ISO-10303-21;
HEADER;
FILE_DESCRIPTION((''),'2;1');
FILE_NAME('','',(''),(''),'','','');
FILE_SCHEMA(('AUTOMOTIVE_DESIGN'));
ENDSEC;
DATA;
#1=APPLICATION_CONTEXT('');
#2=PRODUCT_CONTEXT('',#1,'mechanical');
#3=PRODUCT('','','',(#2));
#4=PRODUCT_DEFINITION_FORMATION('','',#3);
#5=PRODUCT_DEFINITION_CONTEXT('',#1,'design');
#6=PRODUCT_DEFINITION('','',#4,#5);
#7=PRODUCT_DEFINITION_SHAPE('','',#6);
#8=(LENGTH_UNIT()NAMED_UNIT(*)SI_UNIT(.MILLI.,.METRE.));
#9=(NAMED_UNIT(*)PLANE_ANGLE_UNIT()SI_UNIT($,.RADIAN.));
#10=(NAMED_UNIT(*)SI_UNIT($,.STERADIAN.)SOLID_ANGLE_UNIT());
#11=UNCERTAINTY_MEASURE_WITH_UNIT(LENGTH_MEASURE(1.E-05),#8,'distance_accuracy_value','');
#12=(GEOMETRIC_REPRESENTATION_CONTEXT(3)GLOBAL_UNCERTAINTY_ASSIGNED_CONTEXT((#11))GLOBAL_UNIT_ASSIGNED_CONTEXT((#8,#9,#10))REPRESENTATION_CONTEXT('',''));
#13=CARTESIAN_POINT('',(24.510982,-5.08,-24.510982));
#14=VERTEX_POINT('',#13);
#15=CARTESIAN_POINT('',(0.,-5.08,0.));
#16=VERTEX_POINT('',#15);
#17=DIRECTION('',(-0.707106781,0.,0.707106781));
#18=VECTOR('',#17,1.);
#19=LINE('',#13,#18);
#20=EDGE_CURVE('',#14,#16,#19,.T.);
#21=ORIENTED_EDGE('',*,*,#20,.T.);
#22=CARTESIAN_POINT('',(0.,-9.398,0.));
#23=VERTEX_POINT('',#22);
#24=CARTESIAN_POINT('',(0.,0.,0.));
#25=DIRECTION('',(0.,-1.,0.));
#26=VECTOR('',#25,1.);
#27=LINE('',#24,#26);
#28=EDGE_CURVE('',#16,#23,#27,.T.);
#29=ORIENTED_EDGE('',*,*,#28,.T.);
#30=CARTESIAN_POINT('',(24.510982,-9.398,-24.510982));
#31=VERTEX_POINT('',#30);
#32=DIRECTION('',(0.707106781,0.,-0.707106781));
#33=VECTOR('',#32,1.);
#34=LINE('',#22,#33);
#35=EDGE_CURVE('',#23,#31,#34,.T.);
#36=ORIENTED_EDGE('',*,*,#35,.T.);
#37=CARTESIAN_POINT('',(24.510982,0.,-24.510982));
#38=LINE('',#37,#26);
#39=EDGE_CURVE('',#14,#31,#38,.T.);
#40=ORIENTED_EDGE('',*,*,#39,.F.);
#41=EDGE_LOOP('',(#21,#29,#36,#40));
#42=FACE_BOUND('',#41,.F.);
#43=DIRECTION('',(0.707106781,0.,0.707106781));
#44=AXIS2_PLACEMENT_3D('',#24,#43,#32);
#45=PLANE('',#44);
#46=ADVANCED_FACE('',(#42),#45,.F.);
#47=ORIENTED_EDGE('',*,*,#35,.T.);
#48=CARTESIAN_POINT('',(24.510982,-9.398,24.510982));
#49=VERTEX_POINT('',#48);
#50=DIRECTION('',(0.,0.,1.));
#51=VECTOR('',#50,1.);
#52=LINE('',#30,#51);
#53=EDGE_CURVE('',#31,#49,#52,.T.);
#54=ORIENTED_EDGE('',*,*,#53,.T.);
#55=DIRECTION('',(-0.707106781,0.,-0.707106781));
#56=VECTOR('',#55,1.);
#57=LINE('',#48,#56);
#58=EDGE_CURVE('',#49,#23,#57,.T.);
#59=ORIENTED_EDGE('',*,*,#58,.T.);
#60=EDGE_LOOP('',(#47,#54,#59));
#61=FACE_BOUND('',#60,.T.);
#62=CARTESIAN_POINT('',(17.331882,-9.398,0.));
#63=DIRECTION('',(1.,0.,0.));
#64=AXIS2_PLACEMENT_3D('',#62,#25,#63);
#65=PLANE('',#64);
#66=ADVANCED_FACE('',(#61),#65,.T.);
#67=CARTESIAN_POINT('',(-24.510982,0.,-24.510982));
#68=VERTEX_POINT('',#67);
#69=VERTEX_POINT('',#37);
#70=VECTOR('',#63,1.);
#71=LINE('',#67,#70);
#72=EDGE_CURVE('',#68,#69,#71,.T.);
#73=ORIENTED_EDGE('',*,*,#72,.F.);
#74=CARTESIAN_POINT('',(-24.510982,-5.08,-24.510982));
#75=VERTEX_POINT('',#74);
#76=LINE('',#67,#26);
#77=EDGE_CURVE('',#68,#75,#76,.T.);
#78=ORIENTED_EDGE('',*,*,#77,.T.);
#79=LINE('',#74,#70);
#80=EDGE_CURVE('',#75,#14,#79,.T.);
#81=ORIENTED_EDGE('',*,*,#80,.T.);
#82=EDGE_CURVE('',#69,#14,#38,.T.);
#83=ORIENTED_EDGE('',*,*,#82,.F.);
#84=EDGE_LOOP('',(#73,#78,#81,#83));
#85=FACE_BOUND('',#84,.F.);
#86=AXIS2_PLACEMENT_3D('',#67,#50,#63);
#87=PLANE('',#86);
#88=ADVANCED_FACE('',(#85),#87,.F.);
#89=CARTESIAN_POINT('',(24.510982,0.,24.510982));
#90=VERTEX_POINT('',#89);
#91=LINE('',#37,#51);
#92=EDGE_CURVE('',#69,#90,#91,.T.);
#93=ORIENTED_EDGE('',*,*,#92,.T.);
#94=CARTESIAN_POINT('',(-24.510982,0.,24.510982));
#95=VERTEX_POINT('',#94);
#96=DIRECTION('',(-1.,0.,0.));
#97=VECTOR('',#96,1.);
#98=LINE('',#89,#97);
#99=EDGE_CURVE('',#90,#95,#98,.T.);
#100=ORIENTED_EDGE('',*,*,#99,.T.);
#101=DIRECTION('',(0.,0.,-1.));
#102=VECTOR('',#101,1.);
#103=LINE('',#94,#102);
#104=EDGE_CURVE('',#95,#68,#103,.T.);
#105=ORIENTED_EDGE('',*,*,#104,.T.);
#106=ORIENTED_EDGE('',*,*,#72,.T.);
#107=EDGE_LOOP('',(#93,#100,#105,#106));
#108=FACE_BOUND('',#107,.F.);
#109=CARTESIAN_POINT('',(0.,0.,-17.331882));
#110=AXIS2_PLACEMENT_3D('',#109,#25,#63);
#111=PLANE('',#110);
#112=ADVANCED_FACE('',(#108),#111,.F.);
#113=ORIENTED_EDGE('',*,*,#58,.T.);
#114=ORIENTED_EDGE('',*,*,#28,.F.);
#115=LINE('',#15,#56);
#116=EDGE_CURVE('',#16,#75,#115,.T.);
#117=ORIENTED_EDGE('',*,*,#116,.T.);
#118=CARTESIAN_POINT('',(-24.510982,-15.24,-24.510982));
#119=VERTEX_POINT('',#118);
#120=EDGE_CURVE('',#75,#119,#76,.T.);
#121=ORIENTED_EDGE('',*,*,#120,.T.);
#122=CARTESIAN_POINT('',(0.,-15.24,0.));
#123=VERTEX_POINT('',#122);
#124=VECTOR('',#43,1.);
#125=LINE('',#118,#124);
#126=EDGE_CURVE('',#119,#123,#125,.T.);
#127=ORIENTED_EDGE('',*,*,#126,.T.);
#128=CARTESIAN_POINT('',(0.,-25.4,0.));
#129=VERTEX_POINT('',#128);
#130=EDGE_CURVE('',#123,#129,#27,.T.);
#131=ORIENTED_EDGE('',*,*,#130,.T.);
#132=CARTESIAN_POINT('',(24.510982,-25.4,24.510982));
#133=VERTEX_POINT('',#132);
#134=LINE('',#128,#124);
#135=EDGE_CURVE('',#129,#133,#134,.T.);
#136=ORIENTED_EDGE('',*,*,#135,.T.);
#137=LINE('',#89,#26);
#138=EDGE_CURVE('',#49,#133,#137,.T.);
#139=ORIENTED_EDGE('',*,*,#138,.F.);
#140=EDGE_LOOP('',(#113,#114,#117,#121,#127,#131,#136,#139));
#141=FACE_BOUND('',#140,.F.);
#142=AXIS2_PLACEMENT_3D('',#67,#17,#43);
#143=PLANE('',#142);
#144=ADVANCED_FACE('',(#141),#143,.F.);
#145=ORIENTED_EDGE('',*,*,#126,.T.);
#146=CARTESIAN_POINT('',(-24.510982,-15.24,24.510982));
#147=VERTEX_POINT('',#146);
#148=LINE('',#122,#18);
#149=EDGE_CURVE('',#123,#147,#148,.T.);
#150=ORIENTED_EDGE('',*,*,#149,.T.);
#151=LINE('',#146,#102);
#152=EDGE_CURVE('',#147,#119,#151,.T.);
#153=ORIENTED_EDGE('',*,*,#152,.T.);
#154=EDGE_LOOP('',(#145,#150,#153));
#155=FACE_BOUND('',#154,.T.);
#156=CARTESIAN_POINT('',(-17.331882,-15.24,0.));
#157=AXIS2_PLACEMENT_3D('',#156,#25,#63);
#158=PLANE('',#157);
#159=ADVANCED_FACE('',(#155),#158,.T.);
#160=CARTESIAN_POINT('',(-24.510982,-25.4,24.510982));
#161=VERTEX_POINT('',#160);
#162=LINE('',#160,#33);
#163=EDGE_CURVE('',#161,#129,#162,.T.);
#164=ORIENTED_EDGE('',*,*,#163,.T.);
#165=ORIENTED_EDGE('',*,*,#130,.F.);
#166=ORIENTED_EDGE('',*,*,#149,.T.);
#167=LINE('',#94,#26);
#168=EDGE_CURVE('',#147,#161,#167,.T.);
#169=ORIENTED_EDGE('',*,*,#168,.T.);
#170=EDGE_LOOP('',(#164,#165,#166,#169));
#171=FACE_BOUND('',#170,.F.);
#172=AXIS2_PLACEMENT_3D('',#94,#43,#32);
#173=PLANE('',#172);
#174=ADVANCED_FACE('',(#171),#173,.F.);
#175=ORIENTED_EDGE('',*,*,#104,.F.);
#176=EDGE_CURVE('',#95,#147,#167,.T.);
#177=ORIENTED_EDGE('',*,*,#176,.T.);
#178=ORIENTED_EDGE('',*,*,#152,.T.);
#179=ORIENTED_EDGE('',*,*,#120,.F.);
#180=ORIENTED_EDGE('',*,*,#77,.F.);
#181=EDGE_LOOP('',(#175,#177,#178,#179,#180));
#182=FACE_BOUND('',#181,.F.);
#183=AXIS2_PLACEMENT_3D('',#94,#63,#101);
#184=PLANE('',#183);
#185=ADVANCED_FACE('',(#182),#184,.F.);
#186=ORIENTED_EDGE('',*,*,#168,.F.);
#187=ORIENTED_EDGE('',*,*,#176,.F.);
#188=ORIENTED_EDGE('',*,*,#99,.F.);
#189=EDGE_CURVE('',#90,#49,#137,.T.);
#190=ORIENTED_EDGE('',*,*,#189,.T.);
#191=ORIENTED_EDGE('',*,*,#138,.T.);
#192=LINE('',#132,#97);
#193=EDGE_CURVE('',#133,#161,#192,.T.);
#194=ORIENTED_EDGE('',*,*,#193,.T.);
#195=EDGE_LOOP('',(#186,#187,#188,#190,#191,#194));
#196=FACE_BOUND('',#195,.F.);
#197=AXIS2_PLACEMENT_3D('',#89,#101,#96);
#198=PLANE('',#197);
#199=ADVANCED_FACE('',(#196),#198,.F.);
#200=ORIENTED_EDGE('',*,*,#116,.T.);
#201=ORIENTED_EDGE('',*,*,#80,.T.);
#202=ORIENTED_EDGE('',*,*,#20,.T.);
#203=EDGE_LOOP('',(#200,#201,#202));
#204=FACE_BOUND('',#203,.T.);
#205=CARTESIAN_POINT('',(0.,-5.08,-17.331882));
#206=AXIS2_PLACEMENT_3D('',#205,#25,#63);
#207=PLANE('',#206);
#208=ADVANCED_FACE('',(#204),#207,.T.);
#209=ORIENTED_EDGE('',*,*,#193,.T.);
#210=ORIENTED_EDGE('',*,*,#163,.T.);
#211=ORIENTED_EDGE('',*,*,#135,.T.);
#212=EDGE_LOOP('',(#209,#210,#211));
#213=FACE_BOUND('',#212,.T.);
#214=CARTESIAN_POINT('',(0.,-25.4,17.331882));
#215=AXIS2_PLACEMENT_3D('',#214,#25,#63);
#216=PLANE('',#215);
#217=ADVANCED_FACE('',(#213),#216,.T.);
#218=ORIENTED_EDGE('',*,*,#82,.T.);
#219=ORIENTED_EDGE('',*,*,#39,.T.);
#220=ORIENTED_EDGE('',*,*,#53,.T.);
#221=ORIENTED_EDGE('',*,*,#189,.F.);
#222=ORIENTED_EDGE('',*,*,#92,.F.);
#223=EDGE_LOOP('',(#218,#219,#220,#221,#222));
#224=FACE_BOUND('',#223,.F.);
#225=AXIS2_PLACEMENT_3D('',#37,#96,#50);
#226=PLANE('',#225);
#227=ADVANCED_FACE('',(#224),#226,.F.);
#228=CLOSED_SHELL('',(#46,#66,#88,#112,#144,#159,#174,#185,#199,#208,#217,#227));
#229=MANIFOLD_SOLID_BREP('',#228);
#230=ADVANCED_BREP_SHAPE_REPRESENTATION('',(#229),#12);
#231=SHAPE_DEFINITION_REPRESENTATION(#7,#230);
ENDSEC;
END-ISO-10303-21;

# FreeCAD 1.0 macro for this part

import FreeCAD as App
import Part
import Sketcher
Q = App.Units.Quantity


def add_polygon(sketch, points):
    """Adds a closed chain of lines whose ends are joined by coincident constraints."""
    first, n = sketch.GeometryCount, len(points)
    for a, b in zip(points, points[1:] + points[:1]):
        sketch.addGeometry(Part.LineSegment(App.Vector(*a, 0), App.Vector(*b, 0)), False)
    for i in range(n):
        sketch.addConstraint(Sketcher.Constraint("Coincident", first + i, 2, first + (i + 1) % n, 1))

doc = App.newDocument("Part")
body = doc.addObject("PartDesign::Body", "Body")

# Sketch on XZ plane
sketch1 = body.newObject("Sketcher::SketchObject", "Sketch")
sketch1.AttachmentSupport = (doc.getObject("XZ_Plane"), [""])
sketch1.MapMode = "FlatFace"
add_polygon(sketch1, [(0, 0), (24.510982, 24.510982), (-24.510982, 24.510982)])  # lines 0-2
sketch1.addConstraint(Sketcher.Constraint("Horizontal", 1))
sketch1.addConstraint(Sketcher.Constraint("Coincident", 2, 2, -1, 1))
sketch1.addConstraint(Sketcher.Constraint("Perpendicular", 0, 2))
sketch1.addConstraint(Sketcher.Constraint("Equal", 0, 2))
sketch1.addConstraint(Sketcher.Constraint("DistanceX", 1, 2, 1, 1, 49.021964))
pad1 = body.newObject("PartDesign::Pad", "Pad")
pad1.Profile = sketch1
pad1.Length = Q("1 in")

# Sketch on XZ plane
sketch2 = body.newObject("Sketcher::SketchObject", "Sketch001")
sketch2.AttachmentSupport = (doc.getObject("XZ_Plane"), [""])
sketch2.MapMode = "FlatFace"
add_polygon(sketch2, [(-24.510982, 24.510982), (-24.510982, -24.510982), (0, 0)])  # lines 0-2
sketch2.addConstraint(Sketcher.Constraint("Vertical", 0))
sketch2.addConstraint(Sketcher.Constraint("Coincident", 1, 2, -1, 1))
sketch2.addConstraint(Sketcher.Constraint("Perpendicular", 1, 2))
sketch2.addConstraint(Sketcher.Constraint("Equal", 1, 2))
sketch2.addConstraint(Sketcher.Constraint("DistanceY", 0, 2, 0, 1, 49.021964))
pad2 = body.newObject("PartDesign::Pad", "Pad001")
pad2.Profile = sketch2
pad2.Length = Q("0.6 in")

# Sketch on XZ plane
sketch3 = body.newObject("Sketcher::SketchObject", "Sketch002")
sketch3.AttachmentSupport = (doc.getObject("XZ_Plane"), [""])
sketch3.MapMode = "FlatFace"
add_polygon(sketch3, [(0, 0), (24.510982, -24.510982), (24.510982, 24.510982)])  # lines 0-2
sketch3.addConstraint(Sketcher.Constraint("Vertical", 1))
sketch3.addConstraint(Sketcher.Constraint("Coincident", 2, 2, -1, 1))
sketch3.addConstraint(Sketcher.Constraint("Perpendicular", 0, 2))
sketch3.addConstraint(Sketcher.Constraint("Equal", 0, 2))
sketch3.addConstraint(Sketcher.Constraint("DistanceY", 1, 1, 1, 2, 49.021964))
pad3 = body.newObject("PartDesign::Pad", "Pad002")
pad3.Profile = sketch3
pad3.Length = Q("0.37 in")

# Sketch on XZ plane
sketch4 = body.newObject("Sketcher::SketchObject", "Sketch003")
sketch4.AttachmentSupport = (doc.getObject("XZ_Plane"), [""])
sketch4.MapMode = "FlatFace"
add_polygon(sketch4, [(-24.510982, -24.510982), (24.510982, -24.510982), (0, 0)])  # lines 0-2
sketch4.addConstraint(Sketcher.Constraint("Horizontal", 0))
sketch4.addConstraint(Sketcher.Constraint("Coincident", 1, 2, -1, 1))
sketch4.addConstraint(Sketcher.Constraint("Perpendicular", 1, 2))
sketch4.addConstraint(Sketcher.Constraint("Equal", 1, 2))
sketch4.addConstraint(Sketcher.Constraint("DistanceX", 0, 1, 0, 2, 49.021964))
pad4 = body.newObject("PartDesign::Pad", "Pad003")
pad4.Profile = sketch4
pad4.Length = Q("0.2 in")

doc.recompute()
